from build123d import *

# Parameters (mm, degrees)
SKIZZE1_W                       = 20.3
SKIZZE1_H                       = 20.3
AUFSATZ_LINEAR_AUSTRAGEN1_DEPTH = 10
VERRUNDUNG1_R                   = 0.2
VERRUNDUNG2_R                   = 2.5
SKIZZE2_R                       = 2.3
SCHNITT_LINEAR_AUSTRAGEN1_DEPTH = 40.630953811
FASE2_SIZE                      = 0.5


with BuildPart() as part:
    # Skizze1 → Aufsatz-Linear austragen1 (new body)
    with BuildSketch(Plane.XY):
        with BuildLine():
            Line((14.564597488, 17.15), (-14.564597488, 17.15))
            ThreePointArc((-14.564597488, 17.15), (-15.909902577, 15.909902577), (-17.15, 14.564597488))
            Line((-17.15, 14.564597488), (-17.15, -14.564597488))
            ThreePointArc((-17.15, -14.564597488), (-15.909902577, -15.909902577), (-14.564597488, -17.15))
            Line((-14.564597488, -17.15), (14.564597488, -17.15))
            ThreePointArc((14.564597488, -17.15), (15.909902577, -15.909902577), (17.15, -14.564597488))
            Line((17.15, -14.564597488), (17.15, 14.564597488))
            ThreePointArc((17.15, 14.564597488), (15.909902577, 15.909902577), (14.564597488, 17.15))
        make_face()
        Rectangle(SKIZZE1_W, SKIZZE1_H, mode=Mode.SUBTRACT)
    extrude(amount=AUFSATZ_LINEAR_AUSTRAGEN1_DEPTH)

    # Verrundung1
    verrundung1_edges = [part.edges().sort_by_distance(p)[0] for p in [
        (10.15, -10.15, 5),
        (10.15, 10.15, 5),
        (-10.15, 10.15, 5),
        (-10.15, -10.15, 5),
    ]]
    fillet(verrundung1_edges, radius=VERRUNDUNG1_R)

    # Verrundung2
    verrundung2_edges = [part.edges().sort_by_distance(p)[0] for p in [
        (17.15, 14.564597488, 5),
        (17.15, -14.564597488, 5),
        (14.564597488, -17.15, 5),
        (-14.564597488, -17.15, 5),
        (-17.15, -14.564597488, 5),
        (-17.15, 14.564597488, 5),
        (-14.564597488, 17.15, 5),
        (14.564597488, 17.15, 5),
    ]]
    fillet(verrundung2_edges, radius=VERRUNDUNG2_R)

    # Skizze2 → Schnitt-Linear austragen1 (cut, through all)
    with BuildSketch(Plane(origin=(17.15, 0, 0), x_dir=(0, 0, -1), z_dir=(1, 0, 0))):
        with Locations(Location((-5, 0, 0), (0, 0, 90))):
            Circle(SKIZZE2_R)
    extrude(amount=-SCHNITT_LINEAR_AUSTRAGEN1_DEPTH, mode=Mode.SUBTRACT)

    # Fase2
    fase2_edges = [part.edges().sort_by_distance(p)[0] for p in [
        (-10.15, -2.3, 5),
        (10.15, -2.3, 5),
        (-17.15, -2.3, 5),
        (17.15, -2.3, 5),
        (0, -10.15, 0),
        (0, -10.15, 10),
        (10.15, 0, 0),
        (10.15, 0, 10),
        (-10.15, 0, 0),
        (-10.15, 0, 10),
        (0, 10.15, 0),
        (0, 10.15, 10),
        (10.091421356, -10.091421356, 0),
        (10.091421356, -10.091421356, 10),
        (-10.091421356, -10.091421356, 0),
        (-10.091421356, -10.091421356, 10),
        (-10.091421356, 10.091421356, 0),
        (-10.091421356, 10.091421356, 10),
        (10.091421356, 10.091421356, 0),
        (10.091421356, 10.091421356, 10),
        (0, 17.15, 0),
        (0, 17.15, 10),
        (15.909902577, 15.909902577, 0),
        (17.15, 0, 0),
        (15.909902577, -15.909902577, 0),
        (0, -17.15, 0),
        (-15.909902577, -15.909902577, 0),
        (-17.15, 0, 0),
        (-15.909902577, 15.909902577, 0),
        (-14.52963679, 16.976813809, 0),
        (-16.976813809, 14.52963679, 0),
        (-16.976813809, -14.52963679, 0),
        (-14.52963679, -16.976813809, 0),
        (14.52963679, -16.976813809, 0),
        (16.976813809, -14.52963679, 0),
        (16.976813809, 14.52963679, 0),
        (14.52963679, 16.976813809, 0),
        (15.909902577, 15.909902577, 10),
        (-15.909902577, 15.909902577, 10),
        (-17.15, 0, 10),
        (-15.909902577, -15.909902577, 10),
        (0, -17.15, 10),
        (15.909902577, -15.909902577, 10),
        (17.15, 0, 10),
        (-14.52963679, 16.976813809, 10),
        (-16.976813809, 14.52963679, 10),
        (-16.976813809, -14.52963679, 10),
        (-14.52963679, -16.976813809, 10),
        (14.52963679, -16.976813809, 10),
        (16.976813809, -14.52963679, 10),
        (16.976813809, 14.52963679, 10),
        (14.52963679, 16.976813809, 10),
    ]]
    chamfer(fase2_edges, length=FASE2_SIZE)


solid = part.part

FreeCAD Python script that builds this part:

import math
import FreeCAD as App
import Part
import Sketcher

V = App.Vector


def edges_at(feature, points):
    """Names of the edges that pass closest to the given points."""
    edges = feature.Shape.Edges
    near = lambda p: min(range(len(edges)), key=lambda i: edges[i].distToShape(Part.Vertex(*p))[0])
    return sorted({f"Edge{near(p) + 1}" for p in points})


def add_polygon(sketch, points):
    """Adds a closed chain of lines whose ends are joined by coincident constraints."""
    first, n = sketch.GeometryCount, len(points)
    for a, b in zip(points, points[1:] + points[:1]):
        sketch.addGeometry(Part.LineSegment(App.Vector(*a, 0), App.Vector(*b, 0)), False)
    for i in range(n):
        sketch.addConstraint(Sketcher.Constraint("Coincident", first + i, 2, first + (i + 1) % n, 1))

doc = App.newDocument("Part")
params = doc.addObject("Spreadsheet::Sheet", "Params")
for row, (alias, value) in enumerate([
    ("sketch1_radius", "22.5 mm"),
    ("sketch1_width", "20.3 mm"),
    ("pad1_length", "10 mm"),
    ("fillet_radius", "0.2 mm"),
    ("fillet2_radius", "2.5 mm"),
    ("sketch2_diameter", "4.6 mm"),
    ("chamfer_size", "0.5 mm"),
], start=1):
    params.set(f"A{row}", alias)
    params.set(f"B{row}", "=" + value)
    params.setAlias(f"B{row}", alias)

body = doc.addObject("PartDesign::Body", "Body")

# Sketch on XY plane
sketch1 = doc.addObject("Sketcher::SketchObject", "Sketch")
body.addObject(sketch1)
sketch1.AttachmentSupport = (doc.XY_Plane, [""])
sketch1.MapMode = "FlatFace"
sketch1.addGeometry(Part.LineSegment(V(14.564597, 17.15, 0), V(-14.564597, 17.15, 0)), False)  # 0
sketch1.addGeometry(Part.ArcOfCircle(Part.Circle(V(0, 0, 0), V(0, 0, 1), 22.5), math.radians(130.339502), math.radians(139.660498)), False)  # 1
sketch1.addGeometry(Part.LineSegment(V(-17.15, 14.564597, 0), V(-17.15, -14.564597, 0)), False)  # 2
sketch1.addGeometry(Part.ArcOfCircle(Part.Circle(V(0, 0, 0), V(0, 0, 1), 22.5), math.radians(-139.660498), math.radians(-130.339502)), False)  # 3
sketch1.addGeometry(Part.LineSegment(V(-14.564597, -17.15, 0), V(14.564597, -17.15, 0)), False)  # 4
sketch1.addGeometry(Part.ArcOfCircle(Part.Circle(V(0, 0, 0), V(0, 0, 1), 22.5), math.radians(-49.660498), math.radians(-40.339502)), False)  # 5
sketch1.addGeometry(Part.LineSegment(V(17.15, -14.564597, 0), V(17.15, 14.564597, 0)), False)  # 6
sketch1.addGeometry(Part.ArcOfCircle(Part.Circle(V(0, 0, 0), V(0, 0, 1), 22.5), math.radians(40.339502), math.radians(49.660498)), False)  # 7
add_polygon(sketch1, [(10.15, -10.15), (-10.15, -10.15), (-10.15, 10.15), (10.15, 10.15)])  # lines 8-11
sketch1.addConstraint([
    Sketcher.Constraint("Coincident", 0, 2, 1, 1),
    Sketcher.Constraint("Coincident", 1, 2, 2, 1),
    Sketcher.Constraint("Coincident", 2, 2, 3, 1),
    Sketcher.Constraint("Coincident", 3, 2, 4, 1),
    Sketcher.Constraint("Coincident", 4, 2, 5, 1),
    Sketcher.Constraint("Coincident", 5, 2, 6, 1),
    Sketcher.Constraint("Coincident", 6, 2, 7, 1),
    Sketcher.Constraint("Coincident", 7, 2, 0, 1),
    Sketcher.Constraint("Horizontal", 0),
    Sketcher.Constraint("Vertical", 2),
    Sketcher.Constraint("Horizontal", 4),
    Sketcher.Constraint("Vertical", 6),
    Sketcher.Constraint("Horizontal", 8),
    Sketcher.Constraint("Vertical", 9),
    Sketcher.Constraint("Horizontal", 10),
    Sketcher.Constraint("Vertical", 11),
    Sketcher.Constraint("Coincident", 1, 3, -1, 1),
    Sketcher.Constraint("Coincident", 3, 3, -1, 1),
    Sketcher.Constraint("Coincident", 5, 3, -1, 1),
    Sketcher.Constraint("Coincident", 7, 3, -1, 1),
    Sketcher.Constraint("Equal", 1, 3),
    Sketcher.Constraint("Equal", 3, 5),
    Sketcher.Constraint("Equal", 5, 7),
    Sketcher.Constraint("Symmetric", 8, 2, 10, 2, -1, 1),
    Sketcher.Constraint("Horizontal", 2, 2, 5, 2),
    Sketcher.Constraint("Vertical", 0, 2, 3, 2),
    Sketcher.Constraint("Equal", 4, 2),
    Sketcher.Constraint("Equal", 10, 9),
    Sketcher.Constraint("Radius", 1, 22.5),
    Sketcher.Constraint("DistanceX", 8, 2, 8, 1, 20.3),
    Sketcher.Constraint("DistanceX", 2, 2, 8, 2, 7.0),
])
sketch1.setExpression("Constraints[32]", "Params.sketch1_radius")
sketch1.setExpression("Constraints[33]", "Params.sketch1_width")
pad1 = doc.addObject("PartDesign::Pad", "Pad")
body.addObject(pad1)
pad1.Profile = sketch1
pad1.setExpression("Length", "Params.pad1_length")
doc.recompute()

fillet = doc.addObject("PartDesign::Fillet", "Fillet")
body.addObject(fillet)
fillet.Base = (pad1, edges_at(pad1, [
    (10.15, -10.15, 5),
    (10.15, 10.15, 5),
    (-10.15, 10.15, 5),
    (-10.15, -10.15, 5),
]))
fillet.setExpression("Radius", "Params.fillet_radius")
doc.recompute()

fillet2 = doc.addObject("PartDesign::Fillet", "Fillet001")
body.addObject(fillet2)
fillet2.Base = (fillet, edges_at(fillet, [
    (17.15, 14.565, 5),
    (17.15, -14.565, 5),
    (14.565, -17.15, 5),
    (-14.565, -17.15, 5),
    (-17.15, -14.565, 5),
    (-17.15, 14.565, 5),
    (-14.565, 17.15, 5),
    (14.565, 17.15, 5),
]))
fillet2.setExpression("Radius", "Params.fillet2_radius")

# Sketch on YZ plane
sketch2 = doc.addObject("Sketcher::SketchObject", "Sketch001")
body.addObject(sketch2)
sketch2.AttachmentSupport = (doc.YZ_Plane, [""])
sketch2.MapMode = "FlatFace"
sketch2.AttachmentOffset = App.Placement(V(0, 0, 17.15), App.Rotation())
sketch2.addGeometry(Part.Circle(V(0, 5, 0), V(0, 0, 1), 2.3), False)
sketch2.addConstraint([
    Sketcher.Constraint("PointOnObject", 0, 3, -2),
    Sketcher.Constraint("Diameter", 0, 4.6),
    Sketcher.Constraint("DistanceY", -1, 1, 0, 3, 5.0),
])
sketch2.setExpression("Constraints[1]", "Params.sketch2_diameter")
pocket1 = doc.addObject("PartDesign::Pocket", "Pocket")
body.addObject(pocket1)
pocket1.Profile = sketch2
pocket1.Type = "ThroughAll"
doc.recompute()

chamfer = doc.addObject("PartDesign::Chamfer", "Chamfer")
body.addObject(chamfer)
chamfer.Base = (pocket1, edges_at(pocket1, [
    (-10.15, -2.3, 5),
    (10.15, -2.3, 5),
    (-17.15, -2.3, 5),
    (17.15, -2.3, 5),
    (0, -10.15, 0),
    (0, -10.15, 10),
    (10.15, 0, 0),
    (10.15, 0, 10),
    (-10.15, 0, 0),
    (-10.15, 0, 10),
    (0, 10.15, 0),
    (0, 10.15, 10),
    (10.091, -10.091, 0),
    (10.091, -10.091, 10),
    (-10.091, -10.091, 0),
    (-10.091, -10.091, 10),
    (-10.091, 10.091, 0),
    (-10.091, 10.091, 10),
    (10.091, 10.091, 0),
    (10.091, 10.091, 10),
    (0, 17.15, 0),
    (0, 17.15, 10),
    (15.91, 15.91, 0),
    (17.15, 0, 0),
    (15.91, -15.91, 0),
    (0, -17.15, 0),
    (-15.91, -15.91, 0),
    (-17.15, 0, 0),
    (-15.91, 15.91, 0),
    (-14.53, 16.977, 0),
    (-16.977, 14.53, 0),
    (-16.977, -14.53, 0),
    (-14.53, -16.977, 0),
    (14.53, -16.977, 0),
    (16.977, -14.53, 0),
    (16.977, 14.53, 0),
    (14.53, 16.977, 0),
    (15.91, 15.91, 10),
    (-15.91, 15.91, 10),
    (-17.15, 0, 10),
    (-15.91, -15.91, 10),
    (0, -17.15, 10),
    (15.91, -15.91, 10),
    (17.15, 0, 10),
    (-14.53, 16.977, 10),
    (-16.977, 14.53, 10),
    (-16.977, -14.53, 10),
    (-14.53, -16.977, 10),
    (14.53, -16.977, 10),
    (16.977, -14.53, 10),
    (16.977, 14.53, 10),
    (14.53, 16.977, 10),
]))
chamfer.setExpression("Size", "Params.chamfer_size")

doc.recompute()
